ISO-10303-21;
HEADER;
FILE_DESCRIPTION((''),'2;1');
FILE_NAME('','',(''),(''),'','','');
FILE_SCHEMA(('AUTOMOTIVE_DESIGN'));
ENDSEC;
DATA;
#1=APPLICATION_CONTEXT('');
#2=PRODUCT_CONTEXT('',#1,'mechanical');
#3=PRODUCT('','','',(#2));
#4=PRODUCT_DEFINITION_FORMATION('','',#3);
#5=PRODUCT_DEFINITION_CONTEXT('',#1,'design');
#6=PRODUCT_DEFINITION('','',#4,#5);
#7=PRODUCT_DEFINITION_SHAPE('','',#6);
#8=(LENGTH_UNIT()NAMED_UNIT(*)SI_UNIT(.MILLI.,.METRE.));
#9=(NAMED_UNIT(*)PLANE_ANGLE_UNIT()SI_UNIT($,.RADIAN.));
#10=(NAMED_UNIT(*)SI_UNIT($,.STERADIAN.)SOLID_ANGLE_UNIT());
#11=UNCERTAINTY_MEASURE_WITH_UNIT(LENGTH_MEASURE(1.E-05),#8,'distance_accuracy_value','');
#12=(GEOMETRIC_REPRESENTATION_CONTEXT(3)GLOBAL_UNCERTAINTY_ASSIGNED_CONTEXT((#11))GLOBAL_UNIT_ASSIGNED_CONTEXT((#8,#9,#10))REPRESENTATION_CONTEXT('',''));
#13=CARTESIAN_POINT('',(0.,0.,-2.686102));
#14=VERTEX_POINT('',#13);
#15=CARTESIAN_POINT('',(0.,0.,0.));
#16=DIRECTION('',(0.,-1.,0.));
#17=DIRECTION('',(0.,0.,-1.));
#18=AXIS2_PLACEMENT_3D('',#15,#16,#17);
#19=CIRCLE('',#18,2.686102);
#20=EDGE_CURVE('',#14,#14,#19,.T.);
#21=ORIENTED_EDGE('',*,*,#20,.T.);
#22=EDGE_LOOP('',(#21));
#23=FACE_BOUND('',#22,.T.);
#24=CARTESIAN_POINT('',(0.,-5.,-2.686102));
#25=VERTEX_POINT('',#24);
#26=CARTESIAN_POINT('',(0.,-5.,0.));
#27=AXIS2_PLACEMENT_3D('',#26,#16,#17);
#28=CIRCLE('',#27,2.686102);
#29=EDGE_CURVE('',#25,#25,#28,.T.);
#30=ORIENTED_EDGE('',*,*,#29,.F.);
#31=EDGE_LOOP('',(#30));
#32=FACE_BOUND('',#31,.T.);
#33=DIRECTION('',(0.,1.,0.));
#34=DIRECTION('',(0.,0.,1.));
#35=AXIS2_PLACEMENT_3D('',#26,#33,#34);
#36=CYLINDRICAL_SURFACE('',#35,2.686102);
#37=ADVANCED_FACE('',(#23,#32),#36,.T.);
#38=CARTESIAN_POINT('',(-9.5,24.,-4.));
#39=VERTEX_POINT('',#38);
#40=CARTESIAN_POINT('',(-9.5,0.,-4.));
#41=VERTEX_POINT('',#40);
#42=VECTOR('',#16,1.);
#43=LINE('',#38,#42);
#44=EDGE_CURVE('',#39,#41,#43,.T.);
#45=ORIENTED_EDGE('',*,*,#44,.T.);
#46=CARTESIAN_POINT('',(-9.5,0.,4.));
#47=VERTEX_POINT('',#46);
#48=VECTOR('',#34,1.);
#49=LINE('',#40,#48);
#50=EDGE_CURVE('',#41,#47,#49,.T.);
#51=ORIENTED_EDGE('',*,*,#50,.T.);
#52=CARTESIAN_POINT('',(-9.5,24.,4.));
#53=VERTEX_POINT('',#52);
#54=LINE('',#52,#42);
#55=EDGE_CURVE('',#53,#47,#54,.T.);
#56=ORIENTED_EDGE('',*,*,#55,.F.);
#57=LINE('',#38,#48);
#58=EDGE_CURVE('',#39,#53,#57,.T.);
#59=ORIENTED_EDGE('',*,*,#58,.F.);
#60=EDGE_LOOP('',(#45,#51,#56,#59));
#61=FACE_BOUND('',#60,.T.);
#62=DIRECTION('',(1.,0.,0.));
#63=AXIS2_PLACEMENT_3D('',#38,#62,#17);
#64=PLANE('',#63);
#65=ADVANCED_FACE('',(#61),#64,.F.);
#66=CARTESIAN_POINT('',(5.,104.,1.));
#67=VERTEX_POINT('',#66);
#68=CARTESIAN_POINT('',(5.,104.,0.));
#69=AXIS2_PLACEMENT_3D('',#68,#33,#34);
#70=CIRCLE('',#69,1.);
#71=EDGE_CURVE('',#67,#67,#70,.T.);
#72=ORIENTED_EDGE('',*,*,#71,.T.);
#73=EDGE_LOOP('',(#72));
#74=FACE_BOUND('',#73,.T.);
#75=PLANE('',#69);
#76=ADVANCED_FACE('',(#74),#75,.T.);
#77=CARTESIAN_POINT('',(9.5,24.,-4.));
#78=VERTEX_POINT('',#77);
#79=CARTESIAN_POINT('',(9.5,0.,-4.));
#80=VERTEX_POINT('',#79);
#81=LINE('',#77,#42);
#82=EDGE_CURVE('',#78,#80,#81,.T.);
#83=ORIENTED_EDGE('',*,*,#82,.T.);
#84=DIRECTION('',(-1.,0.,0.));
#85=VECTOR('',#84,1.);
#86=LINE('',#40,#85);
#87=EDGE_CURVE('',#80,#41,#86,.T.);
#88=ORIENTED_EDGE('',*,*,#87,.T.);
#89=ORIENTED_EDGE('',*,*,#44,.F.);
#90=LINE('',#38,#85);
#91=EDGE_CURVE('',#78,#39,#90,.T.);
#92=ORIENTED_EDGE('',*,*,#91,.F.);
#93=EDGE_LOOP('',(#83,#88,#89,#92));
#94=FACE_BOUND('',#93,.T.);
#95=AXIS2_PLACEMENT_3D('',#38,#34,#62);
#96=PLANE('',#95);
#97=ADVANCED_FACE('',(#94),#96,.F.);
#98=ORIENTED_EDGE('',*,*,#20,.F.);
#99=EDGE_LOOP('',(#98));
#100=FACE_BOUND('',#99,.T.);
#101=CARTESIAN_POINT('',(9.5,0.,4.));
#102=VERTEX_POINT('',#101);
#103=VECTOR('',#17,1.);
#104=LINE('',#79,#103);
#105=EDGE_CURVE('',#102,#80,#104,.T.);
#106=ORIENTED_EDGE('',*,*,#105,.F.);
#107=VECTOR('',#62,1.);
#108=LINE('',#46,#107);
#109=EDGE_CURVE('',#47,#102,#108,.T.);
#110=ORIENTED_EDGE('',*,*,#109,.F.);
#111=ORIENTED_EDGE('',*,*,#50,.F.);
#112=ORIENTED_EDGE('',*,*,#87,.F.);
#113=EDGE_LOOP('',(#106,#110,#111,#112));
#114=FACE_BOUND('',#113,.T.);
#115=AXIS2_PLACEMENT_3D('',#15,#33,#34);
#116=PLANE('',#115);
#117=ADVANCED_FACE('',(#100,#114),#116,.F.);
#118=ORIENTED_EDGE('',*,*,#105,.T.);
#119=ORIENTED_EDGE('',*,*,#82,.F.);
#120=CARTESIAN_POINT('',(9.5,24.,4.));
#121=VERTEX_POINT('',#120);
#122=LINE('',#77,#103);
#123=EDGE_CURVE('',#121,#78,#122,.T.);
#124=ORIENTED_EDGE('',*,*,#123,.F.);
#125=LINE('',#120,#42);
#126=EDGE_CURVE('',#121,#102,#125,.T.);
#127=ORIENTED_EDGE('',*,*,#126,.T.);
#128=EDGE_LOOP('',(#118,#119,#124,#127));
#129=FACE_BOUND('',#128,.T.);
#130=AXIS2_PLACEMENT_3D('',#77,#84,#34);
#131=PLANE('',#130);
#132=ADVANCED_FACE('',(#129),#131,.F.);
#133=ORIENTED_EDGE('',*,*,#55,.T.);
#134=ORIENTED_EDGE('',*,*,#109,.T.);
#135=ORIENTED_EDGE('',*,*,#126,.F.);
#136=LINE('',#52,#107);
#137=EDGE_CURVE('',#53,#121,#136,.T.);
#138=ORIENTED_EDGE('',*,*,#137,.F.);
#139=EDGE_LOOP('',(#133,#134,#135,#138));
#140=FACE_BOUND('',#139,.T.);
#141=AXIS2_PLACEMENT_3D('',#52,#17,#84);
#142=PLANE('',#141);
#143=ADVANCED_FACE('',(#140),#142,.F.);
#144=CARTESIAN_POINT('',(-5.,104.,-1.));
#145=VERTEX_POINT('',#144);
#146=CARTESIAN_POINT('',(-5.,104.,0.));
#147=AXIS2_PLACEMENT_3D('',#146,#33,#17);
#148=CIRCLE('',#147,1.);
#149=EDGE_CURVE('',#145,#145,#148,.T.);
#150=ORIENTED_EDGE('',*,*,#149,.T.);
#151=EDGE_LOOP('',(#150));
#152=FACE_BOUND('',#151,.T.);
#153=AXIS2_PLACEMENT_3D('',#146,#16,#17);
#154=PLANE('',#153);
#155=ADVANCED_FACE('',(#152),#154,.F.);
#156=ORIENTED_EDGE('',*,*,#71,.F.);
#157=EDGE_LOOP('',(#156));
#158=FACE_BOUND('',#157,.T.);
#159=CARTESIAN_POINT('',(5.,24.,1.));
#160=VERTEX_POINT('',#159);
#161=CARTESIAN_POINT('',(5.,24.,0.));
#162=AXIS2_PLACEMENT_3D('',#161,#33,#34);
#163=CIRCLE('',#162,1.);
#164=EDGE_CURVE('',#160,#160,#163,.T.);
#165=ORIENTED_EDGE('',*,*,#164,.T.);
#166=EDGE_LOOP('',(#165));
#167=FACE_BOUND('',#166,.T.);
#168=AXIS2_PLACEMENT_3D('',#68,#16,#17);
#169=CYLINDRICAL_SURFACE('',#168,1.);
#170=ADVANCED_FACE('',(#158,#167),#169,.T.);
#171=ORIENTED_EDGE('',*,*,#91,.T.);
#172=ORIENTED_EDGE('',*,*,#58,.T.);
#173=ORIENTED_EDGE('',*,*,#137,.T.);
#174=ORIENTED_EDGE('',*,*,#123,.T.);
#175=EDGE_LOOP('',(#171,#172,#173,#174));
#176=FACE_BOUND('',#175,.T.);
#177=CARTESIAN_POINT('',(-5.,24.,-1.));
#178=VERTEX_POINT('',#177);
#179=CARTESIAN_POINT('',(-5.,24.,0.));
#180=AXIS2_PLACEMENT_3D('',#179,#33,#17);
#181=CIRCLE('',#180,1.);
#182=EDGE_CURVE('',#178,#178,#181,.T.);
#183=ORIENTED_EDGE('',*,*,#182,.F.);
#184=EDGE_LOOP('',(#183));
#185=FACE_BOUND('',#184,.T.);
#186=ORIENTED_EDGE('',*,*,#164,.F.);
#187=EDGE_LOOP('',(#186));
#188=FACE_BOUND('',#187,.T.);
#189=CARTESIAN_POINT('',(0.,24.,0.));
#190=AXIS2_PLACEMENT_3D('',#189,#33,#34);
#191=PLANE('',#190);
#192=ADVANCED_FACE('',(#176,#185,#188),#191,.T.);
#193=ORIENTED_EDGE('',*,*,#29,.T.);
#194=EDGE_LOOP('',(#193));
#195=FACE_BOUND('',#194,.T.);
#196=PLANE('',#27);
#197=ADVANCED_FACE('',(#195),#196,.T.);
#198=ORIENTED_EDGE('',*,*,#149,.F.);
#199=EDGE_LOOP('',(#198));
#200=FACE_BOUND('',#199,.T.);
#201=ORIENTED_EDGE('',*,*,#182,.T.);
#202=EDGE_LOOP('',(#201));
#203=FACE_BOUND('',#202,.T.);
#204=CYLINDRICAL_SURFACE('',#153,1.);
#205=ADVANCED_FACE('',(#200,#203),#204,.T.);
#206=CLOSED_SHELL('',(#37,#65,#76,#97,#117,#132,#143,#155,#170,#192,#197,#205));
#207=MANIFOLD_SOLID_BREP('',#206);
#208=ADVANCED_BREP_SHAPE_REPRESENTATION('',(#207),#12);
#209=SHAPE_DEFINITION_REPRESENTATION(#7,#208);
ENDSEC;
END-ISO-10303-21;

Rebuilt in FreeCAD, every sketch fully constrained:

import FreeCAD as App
import Part
import Sketcher
Q = App.Units.Quantity


def add_polygon(sketch, points):
    """Adds a closed chain of lines whose ends are joined by coincident constraints."""
    first, n = sketch.GeometryCount, len(points)
    for a, b in zip(points, points[1:] + points[:1]):
        sketch.addGeometry(Part.LineSegment(App.Vector(*a, 0), App.Vector(*b, 0)), False)
    for i in range(n):
        sketch.addConstraint(Sketcher.Constraint("Coincident", first + i, 2, first + (i + 1) % n, 1))

doc = App.newDocument("Part")
params = doc.addObject("Spreadsheet::Sheet", "Params")
for row, (alias, value) in enumerate([
    ("sketch1_width", "19 mm"),
    ("sketch1_height", "8 mm"),
    ("pad1_length", "24 mm"),
    ("sketch2_diameter", "2 mm"),
    ("pad2_length", "80 mm"),
    ("pad3_length", "5 mm"),
], start=1):
    params.set(f"A{row}", alias)
    params.set(f"B{row}", "=" + value)
    params.setAlias(f"B{row}", alias)

body = doc.addObject("PartDesign::Body", "Body")

sketch1 = doc.addObject("Sketcher::SketchObject", "Sketch")
body.addObject(sketch1)
sketch1.AttachmentSupport = (doc.XZ_Plane, [""])
sketch1.MapMode = "FlatFace"
add_polygon(sketch1, [(-10, -4), (-10, 4), (10, 4), (10, -4)])
sketch1.addConstraint(Sketcher.Constraint("Vertical", 0))
sketch1.addConstraint(Sketcher.Constraint("Horizontal", 1))
sketch1.addConstraint(Sketcher.Constraint("Vertical", 2))
sketch1.addConstraint(Sketcher.Constraint("Horizontal", 3))
sketch1.addConstraint(Sketcher.Constraint("Symmetric", 0, 2, 2, 2, -1, 1))
sketch1.addConstraint(Sketcher.Constraint("DistanceX", 1, 1, 1, 2, Q("19 mm")))
sketch1.addConstraint(Sketcher.Constraint("DistanceY", 0, 1, 0, 2, Q("8 mm")))
sketch1.setExpression("Constraints[9]", "Params.sketch1_width")
sketch1.setExpression("Constraints[10]", "Params.sketch1_height")
pad1 = doc.addObject("PartDesign::Pad", "Pad")
body.addObject(pad1)
pad1.Profile = sketch1
pad1.setExpression("Length", "Params.pad1_length")
pad1.Reversed = True

sketch2 = doc.addObject("Sketcher::SketchObject", "Sketch001")
body.addObject(sketch2)
sketch2.AttachmentSupport = (doc.XZ_Plane, [""])
sketch2.MapMode = "FlatFace"
sketch2.AttachmentOffset = App.Placement(App.Vector(0, 0, -24), App.Rotation())
sketch2.addGeometry(Part.Circle(App.Vector(5, 0, 0), App.Vector(0, 0, 1), 1), False)
sketch2.addGeometry(Part.Circle(App.Vector(-5, 0, 0), App.Vector(0, 0, 1), 1), False)
sketch2.addConstraint(Sketcher.Constraint("Equal", 0, 1))
sketch2.addConstraint(Sketcher.Constraint("Symmetric", 0, 3, 1, 3, -1, 1))
sketch2.addConstraint(Sketcher.Constraint("PointOnObject", 0, 3, -1))
sketch2.addConstraint(Sketcher.Constraint("Diameter", 0, Q("2 mm")))
sketch2.addConstraint(Sketcher.Constraint("DistanceX", -1, 1, 0, 3, Q("5 mm")))
sketch2.setExpression("Constraints[3]", "Params.sketch2_diameter")
pad2 = doc.addObject("PartDesign::Pad", "Pad001")
body.addObject(pad2)
pad2.Profile = sketch2
pad2.setExpression("Length", "Params.pad2_length")
pad2.Reversed = True

sketch3 = doc.addObject("Sketcher::SketchObject", "Sketch002")
body.addObject(sketch3)
sketch3.AttachmentSupport = (doc.XZ_Plane, [""])
sketch3.MapMode = "FlatFace"
sketch3.addGeometry(Part.Circle(App.Vector(0, 0, 0), App.Vector(0, 0, 1), 2.7), False)
sketch3.addConstraint(Sketcher.Constraint("Coincident", 0, 3, -1, 1))
sketch3.addConstraint(Sketcher.Constraint("Diameter", 0, Q("5.372205 mm")))
pad3 = doc.addObject("PartDesign::Pad", "Pad002")
body.addObject(pad3)
pad3.Profile = sketch3
pad3.setExpression("Length", "Params.pad3_length")

doc.recompute()
